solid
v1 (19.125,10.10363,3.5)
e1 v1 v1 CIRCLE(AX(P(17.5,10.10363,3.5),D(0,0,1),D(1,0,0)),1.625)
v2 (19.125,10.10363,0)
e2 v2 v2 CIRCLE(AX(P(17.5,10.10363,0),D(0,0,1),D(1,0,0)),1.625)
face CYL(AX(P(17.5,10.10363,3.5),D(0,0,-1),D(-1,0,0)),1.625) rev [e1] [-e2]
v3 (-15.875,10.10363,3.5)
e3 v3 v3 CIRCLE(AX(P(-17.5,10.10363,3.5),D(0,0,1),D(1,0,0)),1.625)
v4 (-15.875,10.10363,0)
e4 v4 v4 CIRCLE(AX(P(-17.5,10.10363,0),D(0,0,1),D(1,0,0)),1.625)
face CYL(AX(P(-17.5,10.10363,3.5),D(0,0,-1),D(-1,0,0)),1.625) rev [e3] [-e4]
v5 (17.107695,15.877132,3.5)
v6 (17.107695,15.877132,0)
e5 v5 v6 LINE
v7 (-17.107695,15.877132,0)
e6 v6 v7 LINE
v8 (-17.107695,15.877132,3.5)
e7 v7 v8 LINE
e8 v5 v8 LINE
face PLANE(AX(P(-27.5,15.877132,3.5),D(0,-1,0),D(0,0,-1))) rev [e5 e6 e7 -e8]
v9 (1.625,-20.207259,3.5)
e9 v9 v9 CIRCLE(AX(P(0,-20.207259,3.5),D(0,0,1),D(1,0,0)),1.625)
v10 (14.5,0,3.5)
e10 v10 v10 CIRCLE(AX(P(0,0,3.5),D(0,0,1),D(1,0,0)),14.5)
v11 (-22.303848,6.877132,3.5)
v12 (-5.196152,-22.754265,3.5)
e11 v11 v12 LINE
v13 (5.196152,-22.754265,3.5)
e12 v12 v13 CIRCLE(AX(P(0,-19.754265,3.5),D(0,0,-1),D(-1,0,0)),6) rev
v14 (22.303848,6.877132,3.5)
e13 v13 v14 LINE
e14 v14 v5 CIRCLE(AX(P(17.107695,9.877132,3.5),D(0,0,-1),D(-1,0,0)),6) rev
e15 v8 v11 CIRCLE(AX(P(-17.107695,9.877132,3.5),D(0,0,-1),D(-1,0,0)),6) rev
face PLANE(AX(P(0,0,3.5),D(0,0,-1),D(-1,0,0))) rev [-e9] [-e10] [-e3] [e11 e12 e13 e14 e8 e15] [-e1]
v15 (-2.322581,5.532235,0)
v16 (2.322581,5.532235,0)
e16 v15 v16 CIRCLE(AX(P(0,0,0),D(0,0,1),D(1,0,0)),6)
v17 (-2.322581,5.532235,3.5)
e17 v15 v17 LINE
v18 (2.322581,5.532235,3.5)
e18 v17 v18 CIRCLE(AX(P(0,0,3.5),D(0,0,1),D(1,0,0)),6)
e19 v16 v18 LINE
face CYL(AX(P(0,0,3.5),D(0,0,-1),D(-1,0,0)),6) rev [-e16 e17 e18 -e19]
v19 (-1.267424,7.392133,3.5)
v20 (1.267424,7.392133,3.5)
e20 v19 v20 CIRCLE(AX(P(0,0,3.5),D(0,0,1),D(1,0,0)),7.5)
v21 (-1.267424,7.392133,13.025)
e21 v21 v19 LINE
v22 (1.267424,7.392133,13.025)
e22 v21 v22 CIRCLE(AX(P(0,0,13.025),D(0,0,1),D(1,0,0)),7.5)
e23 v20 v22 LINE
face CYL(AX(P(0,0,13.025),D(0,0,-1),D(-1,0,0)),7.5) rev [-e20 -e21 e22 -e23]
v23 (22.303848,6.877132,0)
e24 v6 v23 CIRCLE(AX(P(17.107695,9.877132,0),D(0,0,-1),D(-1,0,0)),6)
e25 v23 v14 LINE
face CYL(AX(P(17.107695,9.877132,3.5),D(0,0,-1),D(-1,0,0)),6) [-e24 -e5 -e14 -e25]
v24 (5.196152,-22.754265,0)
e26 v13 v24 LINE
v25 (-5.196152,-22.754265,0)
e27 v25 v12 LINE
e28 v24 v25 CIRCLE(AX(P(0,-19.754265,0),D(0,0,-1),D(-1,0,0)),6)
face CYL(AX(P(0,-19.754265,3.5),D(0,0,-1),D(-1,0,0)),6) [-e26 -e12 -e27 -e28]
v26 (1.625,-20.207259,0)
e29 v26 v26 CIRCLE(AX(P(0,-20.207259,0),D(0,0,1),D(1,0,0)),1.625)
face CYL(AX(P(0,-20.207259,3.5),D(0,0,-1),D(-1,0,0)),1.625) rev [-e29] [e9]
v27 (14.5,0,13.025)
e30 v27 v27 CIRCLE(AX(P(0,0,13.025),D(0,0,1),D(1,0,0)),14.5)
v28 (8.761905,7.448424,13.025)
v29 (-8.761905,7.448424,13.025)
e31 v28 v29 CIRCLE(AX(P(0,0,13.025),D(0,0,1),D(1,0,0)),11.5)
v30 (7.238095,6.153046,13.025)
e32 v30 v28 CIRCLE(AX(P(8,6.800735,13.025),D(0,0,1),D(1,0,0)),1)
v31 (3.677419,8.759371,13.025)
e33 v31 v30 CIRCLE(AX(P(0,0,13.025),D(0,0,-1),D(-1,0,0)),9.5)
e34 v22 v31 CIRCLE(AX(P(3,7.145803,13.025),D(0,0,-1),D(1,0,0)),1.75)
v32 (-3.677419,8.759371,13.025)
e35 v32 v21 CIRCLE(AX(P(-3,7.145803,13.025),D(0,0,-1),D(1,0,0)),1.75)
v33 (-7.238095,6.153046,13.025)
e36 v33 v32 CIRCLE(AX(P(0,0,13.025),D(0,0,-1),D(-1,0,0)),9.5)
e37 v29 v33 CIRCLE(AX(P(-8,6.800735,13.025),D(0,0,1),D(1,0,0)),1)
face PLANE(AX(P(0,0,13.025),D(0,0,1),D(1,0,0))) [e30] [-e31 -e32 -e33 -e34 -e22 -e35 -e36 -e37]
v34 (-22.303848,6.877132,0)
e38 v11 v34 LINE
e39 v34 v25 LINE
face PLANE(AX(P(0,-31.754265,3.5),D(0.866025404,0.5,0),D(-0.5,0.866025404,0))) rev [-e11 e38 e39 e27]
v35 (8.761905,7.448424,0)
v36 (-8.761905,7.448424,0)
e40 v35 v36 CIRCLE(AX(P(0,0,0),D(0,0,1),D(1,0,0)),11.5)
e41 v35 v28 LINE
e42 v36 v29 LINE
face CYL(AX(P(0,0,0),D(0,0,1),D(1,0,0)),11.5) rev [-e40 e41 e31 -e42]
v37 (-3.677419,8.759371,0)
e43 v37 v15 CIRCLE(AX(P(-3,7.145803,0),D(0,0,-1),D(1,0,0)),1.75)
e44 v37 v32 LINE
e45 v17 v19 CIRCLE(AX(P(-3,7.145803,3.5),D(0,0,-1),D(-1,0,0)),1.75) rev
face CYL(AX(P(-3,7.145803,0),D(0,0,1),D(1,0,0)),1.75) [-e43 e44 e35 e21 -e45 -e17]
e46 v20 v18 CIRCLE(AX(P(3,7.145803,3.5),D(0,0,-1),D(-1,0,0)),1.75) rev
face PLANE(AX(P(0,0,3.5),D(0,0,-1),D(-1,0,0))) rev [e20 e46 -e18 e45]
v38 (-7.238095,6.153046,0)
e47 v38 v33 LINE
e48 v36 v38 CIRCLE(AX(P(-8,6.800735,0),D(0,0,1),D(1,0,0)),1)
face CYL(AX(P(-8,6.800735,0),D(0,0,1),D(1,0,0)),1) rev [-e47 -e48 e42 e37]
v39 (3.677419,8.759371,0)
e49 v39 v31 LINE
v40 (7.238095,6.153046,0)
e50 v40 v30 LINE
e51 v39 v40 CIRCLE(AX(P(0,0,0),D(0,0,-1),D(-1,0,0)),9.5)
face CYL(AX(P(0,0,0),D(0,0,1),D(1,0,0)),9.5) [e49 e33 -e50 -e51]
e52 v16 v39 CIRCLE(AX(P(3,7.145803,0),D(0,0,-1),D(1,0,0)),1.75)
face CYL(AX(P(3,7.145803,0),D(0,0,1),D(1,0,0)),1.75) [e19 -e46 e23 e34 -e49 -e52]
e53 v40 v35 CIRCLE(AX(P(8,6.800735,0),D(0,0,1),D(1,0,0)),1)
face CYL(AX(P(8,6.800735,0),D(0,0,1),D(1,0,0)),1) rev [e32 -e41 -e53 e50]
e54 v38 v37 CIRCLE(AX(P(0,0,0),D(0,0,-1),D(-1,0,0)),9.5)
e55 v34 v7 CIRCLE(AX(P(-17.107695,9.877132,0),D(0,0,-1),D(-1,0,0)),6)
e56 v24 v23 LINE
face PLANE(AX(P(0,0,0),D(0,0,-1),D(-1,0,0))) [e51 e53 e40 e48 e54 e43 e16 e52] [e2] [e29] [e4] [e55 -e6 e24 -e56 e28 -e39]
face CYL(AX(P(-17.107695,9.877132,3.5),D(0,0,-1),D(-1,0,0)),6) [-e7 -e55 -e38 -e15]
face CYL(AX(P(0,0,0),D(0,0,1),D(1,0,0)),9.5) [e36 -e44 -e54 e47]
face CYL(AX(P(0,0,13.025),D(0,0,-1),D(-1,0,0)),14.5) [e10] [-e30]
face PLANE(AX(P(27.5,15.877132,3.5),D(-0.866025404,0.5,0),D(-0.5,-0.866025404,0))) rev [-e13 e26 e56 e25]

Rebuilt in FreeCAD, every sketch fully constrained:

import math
import FreeCAD as App
import Part
import Sketcher
Q = App.Units.Quantity


def edges_at(feature, points):
    """Names of the edges that pass closest to the given points."""
    edges = feature.Shape.Edges
    near = lambda p: min(range(len(edges)), key=lambda i: edges[i].distToShape(Part.Vertex(*p))[0])
    return sorted({f"Edge{near(p) + 1}" for p in points})

doc = App.newDocument("Part")
body = doc.addObject("PartDesign::Body", "Body")

# Sketch on XY plane
sketch1 = doc.addObject("Sketcher::SketchObject", "Sketch")
body.addObject(sketch1)
sketch1.AttachmentSupport = (doc.XY_Plane, [""])
sketch1.MapMode = "FlatFace"
sketch1.addGeometry([
    Part.LineSegment(App.Vector(-27.5, 15.877132, 0), App.Vector(0, -31.754265, 0)),  # 0
    Part.LineSegment(App.Vector(0, -31.754265, 0), App.Vector(27.5, 15.877132, 0)),  # 1
    Part.LineSegment(App.Vector(27.5, 15.877132, 0), App.Vector(-27.5, 15.877132, 0)),  # 2
    Part.Circle(App.Vector(0, -20.207259, 0), App.Vector(0, 0, 1), 1.625),  # 3
    Part.Circle(App.Vector(17.5, 10.10363, 0), App.Vector(0, 0, 1), 1.625),  # 4
    Part.Circle(App.Vector(0, 0, 0), App.Vector(0, 0, 1), 6),  # 5
    Part.Circle(App.Vector(-17.5, 10.10363, 0), App.Vector(0, 0, 1), 1.625),  # 6
], False)
sketch1.addConstraint([
    Sketcher.Constraint("Coincident", 0, 2, 1, 1),
    Sketcher.Constraint("Coincident", 1, 2, 2, 1),
    Sketcher.Constraint("Coincident", 2, 2, 0, 1),
    Sketcher.Constraint("Horizontal", 2),
    Sketcher.Constraint("Coincident", 5, 3, -1, 1),
    Sketcher.Constraint("Equal", 3, 4),
    Sketcher.Constraint("Equal", 4, 6),
    Sketcher.Constraint("Symmetric", 4, 3, 6, 3, -2),
    Sketcher.Constraint("PointOnObject", 3, 3, -2),
    Sketcher.Constraint("PointOnObject", 0, 2, -2),
    Sketcher.Constraint("Equal", 0, 1),
    Sketcher.Constraint("Diameter", 5, 12.0),
    Sketcher.Constraint("Diameter", 3, 3.25),
    Sketcher.Constraint("DistanceX", 2, 2, 2, 1, 55.0),
    Sketcher.Constraint("Angle", 0, Q("-60 deg")),
    Sketcher.Constraint("DistanceX", 6, 3, 4, 3, 35.0),
    Sketcher.Constraint("DistanceY", 3, 3, -1, 1, 20.207259),
    Sketcher.Constraint("DistanceY", -1, 1, 4, 3, 10.10363),
    Sketcher.Constraint("DistanceY", 3, 3, 1, 2, 36.084392),
])
pad1 = doc.addObject("PartDesign::Pad", "Pad")
body.addObject(pad1)
pad1.Profile = sketch1
pad1.Length = 3.5

# Sketch on XY plane
sketch2 = doc.addObject("Sketcher::SketchObject", "Sketch001")
body.addObject(sketch2)
sketch2.AttachmentSupport = (doc.XY_Plane, [""])
sketch2.MapMode = "FlatFace"
sketch2.AttachmentOffset = App.Placement(App.Vector(0, 0, 3.5), App.Rotation())
sketch2.addGeometry([
    Part.Circle(App.Vector(0, 0, 0), App.Vector(0, 0, 1), 14.5),
    Part.Circle(App.Vector(0, 0, 0), App.Vector(0, 0, 1), 7.5),
], False)
sketch2.addConstraint([
    Sketcher.Constraint("Coincident", 0, 3, -1, 1),
    Sketcher.Constraint("Coincident", 1, 3, -1, 1),
    Sketcher.Constraint("Diameter", 0, 29.0),
    Sketcher.Constraint("Diameter", 1, 15.0),
])
pad2 = doc.addObject("PartDesign::Pad", "Pad001")
body.addObject(pad2)
pad2.Profile = sketch2
pad2.Length = 9.525
doc.recompute()

fillet = doc.addObject("PartDesign::Fillet", "Fillet")
body.addObject(fillet)
fillet.Base = (pad2, edges_at(pad2, [(0, -31.754, 1.75), (-27.5, 15.877, 1.75), (27.5, 15.877, 1.75)]))
fillet.Radius = 6

# Sketch on XY plane
sketch3 = doc.addObject("Sketcher::SketchObject", "Sketch002")
body.addObject(sketch3)
sketch3.AttachmentSupport = (doc.XY_Plane, [""])
sketch3.MapMode = "FlatFace"
sketch3.AttachmentOffset = App.Placement(App.Vector(0, 0, 13.025), App.Rotation())
sketch3.addGeometry([
    Part.ArcOfCircle(Part.Circle(App.Vector(0, 0, 0), App.Vector(0, 0, 1), 9.5), math.radians(40.367594), math.radians(139.632406)),
    Part.ArcOfCircle(Part.Circle(App.Vector(8, 6.800735, 0), App.Vector(0, 0, 1), 1), math.radians(-139.632406), math.radians(40.367594)),
    Part.ArcOfCircle(Part.Circle(App.Vector(0, 0, 0), App.Vector(0, 0, 1), 11.5), math.radians(40.367594), math.radians(139.632406)),
    Part.ArcOfCircle(Part.Circle(App.Vector(-8, 6.800735, 0), App.Vector(0, 0, 1), 1), math.radians(139.632406), math.radians(319.632406)),
], False)
sketch3.addConstraint([
    Sketcher.Constraint("Tangent", 0, 1, 1, 1),
    Sketcher.Constraint("Tangent", 1, 2, 2, 1),
    Sketcher.Constraint("Tangent", 2, 2, 3, 1),
    Sketcher.Constraint("Tangent", 3, 2, 0, 2),
    Sketcher.Constraint("Coincident", 0, 3, -1, 1),
    Sketcher.Constraint("Coincident", 2, 3, -1, 1),
    Sketcher.Constraint("Horizontal", 1, 3, 3, 3),
    Sketcher.Constraint("Radius", 1, 1.0),
    Sketcher.Constraint("Radius", 0, 9.5),
    Sketcher.Constraint("DistanceX", -1, 1, 1, 3, 8.0),
])
pocket1 = doc.addObject("PartDesign::Pocket", "Pocket")
body.addObject(pocket1)
pocket1.Profile = sketch3
pocket1.Type = "ThroughAll"

# Sketch on XY plane
sketch4 = doc.addObject("Sketcher::SketchObject", "Sketch003")
body.addObject(sketch4)
sketch4.AttachmentSupport = (doc.XY_Plane, [""])
sketch4.MapMode = "FlatFace"
sketch4.AttachmentOffset = App.Placement(App.Vector(0, 0, 13.025), App.Rotation())
sketch4.addGeometry([
    Part.ArcOfCircle(Part.Circle(App.Vector(-3, 7.145803, 0), App.Vector(0, 0, 1), 1.75), math.radians(-67.226028), math.radians(112.773972)),
    Part.ArcOfCircle(Part.Circle(App.Vector(0, 0, 0), App.Vector(0, 0, 1), 6), math.radians(67.226028), math.radians(112.773972)),
    Part.ArcOfCircle(Part.Circle(App.Vector(3, 7.145803, 0), App.Vector(0, 0, 1), 1.75), math.radians(67.226028), math.radians(247.226028)),
    Part.ArcOfCircle(Part.Circle(App.Vector(0, 0, 0), App.Vector(0, 0, 1), 9.5), math.radians(67.226028), math.radians(112.773972)),
], False)
sketch4.addConstraint([
    Sketcher.Constraint("Tangent", 0, 1, 1, 2),
    Sketcher.Constraint("Tangent", 1, 1, 2, 2),
    Sketcher.Constraint("Tangent", 2, 1, 3, 1),
    Sketcher.Constraint("Tangent", 3, 2, 0, 2),
    Sketcher.Constraint("Coincident", 1, 3, -1, 1),
    Sketcher.Constraint("Coincident", 3, 3, -1, 1),
    Sketcher.Constraint("Horizontal", 0, 3, 2, 3),
    Sketcher.Constraint("Radius", 1, 6.0),
    Sketcher.Constraint("Radius", 3, 9.5),
    Sketcher.Constraint("DistanceX", 0, 3, -1, 1, 3.0),
])
pocket2 = doc.addObject("PartDesign::Pocket", "Pocket001")
body.addObject(pocket2)
pocket2.Profile = sketch4
pocket2.Type = "ThroughAll"

doc.recompute()
